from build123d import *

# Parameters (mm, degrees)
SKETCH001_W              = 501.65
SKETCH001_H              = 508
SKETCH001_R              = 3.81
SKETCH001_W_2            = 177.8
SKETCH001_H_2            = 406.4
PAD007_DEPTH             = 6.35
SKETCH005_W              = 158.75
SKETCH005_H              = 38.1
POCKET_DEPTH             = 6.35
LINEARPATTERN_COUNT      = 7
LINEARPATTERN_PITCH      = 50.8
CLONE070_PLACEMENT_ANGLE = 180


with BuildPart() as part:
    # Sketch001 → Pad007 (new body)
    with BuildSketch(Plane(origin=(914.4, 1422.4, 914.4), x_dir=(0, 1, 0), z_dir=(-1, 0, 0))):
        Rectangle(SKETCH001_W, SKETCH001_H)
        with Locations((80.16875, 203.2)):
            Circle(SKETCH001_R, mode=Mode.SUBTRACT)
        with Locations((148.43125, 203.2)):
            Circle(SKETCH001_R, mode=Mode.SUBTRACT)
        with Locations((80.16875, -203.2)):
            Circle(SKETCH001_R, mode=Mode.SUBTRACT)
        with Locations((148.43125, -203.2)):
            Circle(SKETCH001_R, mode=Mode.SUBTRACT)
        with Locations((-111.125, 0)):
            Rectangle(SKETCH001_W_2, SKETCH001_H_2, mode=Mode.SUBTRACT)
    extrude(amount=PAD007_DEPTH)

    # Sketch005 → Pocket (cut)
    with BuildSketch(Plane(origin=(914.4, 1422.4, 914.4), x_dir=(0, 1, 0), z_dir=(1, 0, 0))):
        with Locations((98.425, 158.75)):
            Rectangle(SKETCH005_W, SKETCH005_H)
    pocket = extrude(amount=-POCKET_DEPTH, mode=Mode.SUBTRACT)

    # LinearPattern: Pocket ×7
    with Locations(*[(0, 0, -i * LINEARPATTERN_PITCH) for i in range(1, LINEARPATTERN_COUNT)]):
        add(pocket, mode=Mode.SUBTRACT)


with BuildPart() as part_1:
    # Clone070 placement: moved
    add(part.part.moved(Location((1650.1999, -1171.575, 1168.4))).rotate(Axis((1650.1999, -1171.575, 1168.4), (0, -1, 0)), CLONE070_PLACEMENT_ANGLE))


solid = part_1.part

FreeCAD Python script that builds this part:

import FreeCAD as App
import Part
import Sketcher
from FreeCAD import Vector
Q = App.Units.Quantity

doc = App.newDocument("Part")
body = doc.addObject("PartDesign::Body", "Body")

# Sketch on YZ plane
sketch1 = body.newObject("Sketcher::SketchObject", "Sketch")
sketch1.AttachmentSupport = (doc.getObject("YZ_Plane"), [""])
sketch1.MapMode = "FlatFace"
sketch1.AttachmentOffset = App.Placement(Vector(0, 0, 36 * 25.4), App.Rotation())
sketch1.addGeometry(Part.LineSegment(Vector(1171.575, 660.4, 0), Vector(1171.575, 1168.4, 0)), False)
sketch1.addGeometry(Part.LineSegment(Vector(1171.575, 1168.4, 0), Vector(1673.225, 1168.4, 0)), False)
sketch1.addGeometry(Part.LineSegment(Vector(1673.225, 1168.4, 0), Vector(1673.225, 660.4, 0)), False)
sketch1.addGeometry(Part.LineSegment(Vector(1673.225, 660.4, 0), Vector(1171.575, 660.4, 0)), False)
sketch1.addGeometry(Part.Circle(Vector(1502.56875, 1117.6, 0), Vector(0, 0, 1), 3.81), False)
sketch1.addGeometry(Part.Circle(Vector(1570.83125, 1117.6, 0), Vector(0, 0, 1), 3.81), False)
sketch1.addGeometry(Part.LineSegment(Vector(1400.175, 1117.6, 0), Vector(1222.375, 1117.6, 0)), False)
sketch1.addGeometry(Part.LineSegment(Vector(1222.375, 1117.6, 0), Vector(1222.375, 711.2, 0)), False)
sketch1.addGeometry(Part.LineSegment(Vector(1222.375, 711.2, 0), Vector(1400.175, 711.2, 0)), False)
sketch1.addGeometry(Part.LineSegment(Vector(1400.175, 711.2, 0), Vector(1400.175, 1117.6, 0)), False)
sketch1.addGeometry(Part.Circle(Vector(1502.56875, 711.2, 0), Vector(0, 0, 1), 3.81), False)
sketch1.addGeometry(Part.Circle(Vector(1570.83125, 711.2, 0), Vector(0, 0, 1), 3.81), False)
sketch1.addConstraint(Sketcher.Constraint("Coincident", 0, 2, 1, 1))
sketch1.addConstraint(Sketcher.Constraint("Coincident", 1, 2, 2, 1))
sketch1.addConstraint(Sketcher.Constraint("Coincident", 2, 2, 3, 1))
sketch1.addConstraint(Sketcher.Constraint("Coincident", 3, 2, 0, 1))
sketch1.addConstraint(Sketcher.Constraint("Coincident", 6, 2, 7, 1))
sketch1.addConstraint(Sketcher.Constraint("Coincident", 7, 2, 8, 1))
sketch1.addConstraint(Sketcher.Constraint("Coincident", 8, 2, 9, 1))
sketch1.addConstraint(Sketcher.Constraint("Coincident", 9, 2, 6, 1))
sketch1.addConstraint(Sketcher.Constraint("Vertical", 0))
sketch1.addConstraint(Sketcher.Constraint("Horizontal", 1))
sketch1.addConstraint(Sketcher.Constraint("Vertical", 2))
sketch1.addConstraint(Sketcher.Constraint("Horizontal", 3))
sketch1.addConstraint(Sketcher.Constraint("Horizontal", 6))
sketch1.addConstraint(Sketcher.Constraint("Vertical", 7))
sketch1.addConstraint(Sketcher.Constraint("Horizontal", 8))
sketch1.addConstraint(Sketcher.Constraint("Vertical", 9))
sketch1.addConstraint(Sketcher.Constraint("Equal", 4, 5))
sketch1.addConstraint(Sketcher.Constraint("Equal", 5, 10))
sketch1.addConstraint(Sketcher.Constraint("Equal", 10, 11))
sketch1.addConstraint(Sketcher.Constraint("Horizontal", 4, 3, 5, 3))
sketch1.addConstraint(Sketcher.Constraint("Horizontal", 10, 3, 11, 3))
sketch1.addConstraint(Sketcher.Constraint("Horizontal", 5, 3, 6, 2))
sketch1.addConstraint(Sketcher.Constraint("Horizontal", 11, 3, 7, 2))
sketch1.addConstraint(Sketcher.Constraint("Vertical", 4, 3, 10, 3))
sketch1.addConstraint(Sketcher.Constraint("Vertical", 5, 3, 11, 3))
sketch1.addConstraint(Sketcher.Constraint("Diameter", 4, Q("0.3 in")))
sketch1.addConstraint(Sketcher.Constraint("DistanceX", 6, 2, 6, 1, Q("7 in")))
sketch1.addConstraint(Sketcher.Constraint("DistanceY", 0, 1, 0, 2, Q("20 in")))
sketch1.addConstraint(Sketcher.Constraint("DistanceY", 7, 2, 7, 1, Q("16 in")))
sketch1.addConstraint(Sketcher.Constraint("DistanceY", -1, 1, 4, 3, Q("44 in")))
sketch1.addConstraint(Sketcher.Constraint("DistanceY", -1, 1, 0, 2, Q("46 in")))
sketch1.addConstraint(Sketcher.Constraint("DistanceX", 0, 2, 6, 2, Q("2 in")))
sketch1.addConstraint(Sketcher.Constraint("DistanceX", 1, 1, 1, 2, Q("19.75 in")))
sketch1.addConstraint(Sketcher.Constraint("DistanceX", -1, 1, 4, 3, Q("59.15625 in")))
sketch1.addConstraint(Sketcher.Constraint("DistanceX", -1, 1, 5, 3, Q("61.84375 in")))
sketch1.addConstraint(Sketcher.Constraint("DistanceX", -1, 1, 0, 2, Q("46.125 in")))
pad1 = body.newObject("PartDesign::Pad", "Pad")
pad1.Profile = sketch1
pad1.Length = Q("0.25 in")
pad1.Reversed = True

# Sketch on YZ plane
sketch2 = body.newObject("Sketcher::SketchObject", "Sketch001")
sketch2.AttachmentSupport = (doc.getObject("YZ_Plane"), [""])
sketch2.MapMode = "FlatFace"
sketch2.AttachmentOffset = App.Placement(Vector(0, 0, 36 * 25.4), App.Rotation())
sketch2.addGeometry(Part.LineSegment(Vector(1441.45, 1092.2, 0), Vector(1441.45, 1054.1, 0)), False)
sketch2.addGeometry(Part.LineSegment(Vector(1441.45, 1054.1, 0), Vector(1600.2, 1054.1, 0)), False)
sketch2.addGeometry(Part.LineSegment(Vector(1600.2, 1054.1, 0), Vector(1600.2, 1092.2, 0)), False)
sketch2.addGeometry(Part.LineSegment(Vector(1600.2, 1092.2, 0), Vector(1441.45, 1092.2, 0)), False)
sketch2.addConstraint(Sketcher.Constraint("Coincident", 0, 2, 1, 1))
sketch2.addConstraint(Sketcher.Constraint("Coincident", 1, 2, 2, 1))
sketch2.addConstraint(Sketcher.Constraint("Coincident", 2, 2, 3, 1))
sketch2.addConstraint(Sketcher.Constraint("Coincident", 3, 2, 0, 1))
sketch2.addConstraint(Sketcher.Constraint("Vertical", 0))
sketch2.addConstraint(Sketcher.Constraint("Horizontal", 1))
sketch2.addConstraint(Sketcher.Constraint("Vertical", 2))
sketch2.addConstraint(Sketcher.Constraint("Horizontal", 3))
sketch2.addConstraint(Sketcher.Constraint("DistanceY", 0, 2, 0, 1, Q("1.5 in")))
sketch2.addConstraint(Sketcher.Constraint("DistanceX", -1, 1, 1, 2, Q("63 in")))
sketch2.addConstraint(Sketcher.Constraint("DistanceY", -1, 1, 2, 2, Q("43 in")))
sketch2.addConstraint(Sketcher.Constraint("DistanceX", 1, 1, 1, 2, Q("6.25 in")))
pocket1 = body.newObject("PartDesign::Pocket", "Pocket")
pocket1.Profile = sketch2
pocket1.Length = Q("0.25 in")
doc.recompute()

linearpattern = body.newObject("PartDesign::LinearPattern", "LinearPattern")
linearpattern.Originals = [pocket1]
linearpattern.Direction = (doc.getObject("Z_Axis"), [""])
linearpattern.Mode = "offset"
linearpattern.Offset = Q("2 in")
linearpattern.Occurrences = 7
linearpattern.Reversed = True
body.Tip = linearpattern
body2 = doc.addObject("PartDesign::Body", "Body001")
doc.recompute()

body.Placement = App.Placement(Vector(1650.1999, -1171.575, 1168.4), App.Rotation(Vector(0, -1, 0), 180))
boolean = body2.newObject("PartDesign::Boolean", "Boolean")
boolean.Type = "Fuse"
boolean.addObjects([body])

doc.recompute()
